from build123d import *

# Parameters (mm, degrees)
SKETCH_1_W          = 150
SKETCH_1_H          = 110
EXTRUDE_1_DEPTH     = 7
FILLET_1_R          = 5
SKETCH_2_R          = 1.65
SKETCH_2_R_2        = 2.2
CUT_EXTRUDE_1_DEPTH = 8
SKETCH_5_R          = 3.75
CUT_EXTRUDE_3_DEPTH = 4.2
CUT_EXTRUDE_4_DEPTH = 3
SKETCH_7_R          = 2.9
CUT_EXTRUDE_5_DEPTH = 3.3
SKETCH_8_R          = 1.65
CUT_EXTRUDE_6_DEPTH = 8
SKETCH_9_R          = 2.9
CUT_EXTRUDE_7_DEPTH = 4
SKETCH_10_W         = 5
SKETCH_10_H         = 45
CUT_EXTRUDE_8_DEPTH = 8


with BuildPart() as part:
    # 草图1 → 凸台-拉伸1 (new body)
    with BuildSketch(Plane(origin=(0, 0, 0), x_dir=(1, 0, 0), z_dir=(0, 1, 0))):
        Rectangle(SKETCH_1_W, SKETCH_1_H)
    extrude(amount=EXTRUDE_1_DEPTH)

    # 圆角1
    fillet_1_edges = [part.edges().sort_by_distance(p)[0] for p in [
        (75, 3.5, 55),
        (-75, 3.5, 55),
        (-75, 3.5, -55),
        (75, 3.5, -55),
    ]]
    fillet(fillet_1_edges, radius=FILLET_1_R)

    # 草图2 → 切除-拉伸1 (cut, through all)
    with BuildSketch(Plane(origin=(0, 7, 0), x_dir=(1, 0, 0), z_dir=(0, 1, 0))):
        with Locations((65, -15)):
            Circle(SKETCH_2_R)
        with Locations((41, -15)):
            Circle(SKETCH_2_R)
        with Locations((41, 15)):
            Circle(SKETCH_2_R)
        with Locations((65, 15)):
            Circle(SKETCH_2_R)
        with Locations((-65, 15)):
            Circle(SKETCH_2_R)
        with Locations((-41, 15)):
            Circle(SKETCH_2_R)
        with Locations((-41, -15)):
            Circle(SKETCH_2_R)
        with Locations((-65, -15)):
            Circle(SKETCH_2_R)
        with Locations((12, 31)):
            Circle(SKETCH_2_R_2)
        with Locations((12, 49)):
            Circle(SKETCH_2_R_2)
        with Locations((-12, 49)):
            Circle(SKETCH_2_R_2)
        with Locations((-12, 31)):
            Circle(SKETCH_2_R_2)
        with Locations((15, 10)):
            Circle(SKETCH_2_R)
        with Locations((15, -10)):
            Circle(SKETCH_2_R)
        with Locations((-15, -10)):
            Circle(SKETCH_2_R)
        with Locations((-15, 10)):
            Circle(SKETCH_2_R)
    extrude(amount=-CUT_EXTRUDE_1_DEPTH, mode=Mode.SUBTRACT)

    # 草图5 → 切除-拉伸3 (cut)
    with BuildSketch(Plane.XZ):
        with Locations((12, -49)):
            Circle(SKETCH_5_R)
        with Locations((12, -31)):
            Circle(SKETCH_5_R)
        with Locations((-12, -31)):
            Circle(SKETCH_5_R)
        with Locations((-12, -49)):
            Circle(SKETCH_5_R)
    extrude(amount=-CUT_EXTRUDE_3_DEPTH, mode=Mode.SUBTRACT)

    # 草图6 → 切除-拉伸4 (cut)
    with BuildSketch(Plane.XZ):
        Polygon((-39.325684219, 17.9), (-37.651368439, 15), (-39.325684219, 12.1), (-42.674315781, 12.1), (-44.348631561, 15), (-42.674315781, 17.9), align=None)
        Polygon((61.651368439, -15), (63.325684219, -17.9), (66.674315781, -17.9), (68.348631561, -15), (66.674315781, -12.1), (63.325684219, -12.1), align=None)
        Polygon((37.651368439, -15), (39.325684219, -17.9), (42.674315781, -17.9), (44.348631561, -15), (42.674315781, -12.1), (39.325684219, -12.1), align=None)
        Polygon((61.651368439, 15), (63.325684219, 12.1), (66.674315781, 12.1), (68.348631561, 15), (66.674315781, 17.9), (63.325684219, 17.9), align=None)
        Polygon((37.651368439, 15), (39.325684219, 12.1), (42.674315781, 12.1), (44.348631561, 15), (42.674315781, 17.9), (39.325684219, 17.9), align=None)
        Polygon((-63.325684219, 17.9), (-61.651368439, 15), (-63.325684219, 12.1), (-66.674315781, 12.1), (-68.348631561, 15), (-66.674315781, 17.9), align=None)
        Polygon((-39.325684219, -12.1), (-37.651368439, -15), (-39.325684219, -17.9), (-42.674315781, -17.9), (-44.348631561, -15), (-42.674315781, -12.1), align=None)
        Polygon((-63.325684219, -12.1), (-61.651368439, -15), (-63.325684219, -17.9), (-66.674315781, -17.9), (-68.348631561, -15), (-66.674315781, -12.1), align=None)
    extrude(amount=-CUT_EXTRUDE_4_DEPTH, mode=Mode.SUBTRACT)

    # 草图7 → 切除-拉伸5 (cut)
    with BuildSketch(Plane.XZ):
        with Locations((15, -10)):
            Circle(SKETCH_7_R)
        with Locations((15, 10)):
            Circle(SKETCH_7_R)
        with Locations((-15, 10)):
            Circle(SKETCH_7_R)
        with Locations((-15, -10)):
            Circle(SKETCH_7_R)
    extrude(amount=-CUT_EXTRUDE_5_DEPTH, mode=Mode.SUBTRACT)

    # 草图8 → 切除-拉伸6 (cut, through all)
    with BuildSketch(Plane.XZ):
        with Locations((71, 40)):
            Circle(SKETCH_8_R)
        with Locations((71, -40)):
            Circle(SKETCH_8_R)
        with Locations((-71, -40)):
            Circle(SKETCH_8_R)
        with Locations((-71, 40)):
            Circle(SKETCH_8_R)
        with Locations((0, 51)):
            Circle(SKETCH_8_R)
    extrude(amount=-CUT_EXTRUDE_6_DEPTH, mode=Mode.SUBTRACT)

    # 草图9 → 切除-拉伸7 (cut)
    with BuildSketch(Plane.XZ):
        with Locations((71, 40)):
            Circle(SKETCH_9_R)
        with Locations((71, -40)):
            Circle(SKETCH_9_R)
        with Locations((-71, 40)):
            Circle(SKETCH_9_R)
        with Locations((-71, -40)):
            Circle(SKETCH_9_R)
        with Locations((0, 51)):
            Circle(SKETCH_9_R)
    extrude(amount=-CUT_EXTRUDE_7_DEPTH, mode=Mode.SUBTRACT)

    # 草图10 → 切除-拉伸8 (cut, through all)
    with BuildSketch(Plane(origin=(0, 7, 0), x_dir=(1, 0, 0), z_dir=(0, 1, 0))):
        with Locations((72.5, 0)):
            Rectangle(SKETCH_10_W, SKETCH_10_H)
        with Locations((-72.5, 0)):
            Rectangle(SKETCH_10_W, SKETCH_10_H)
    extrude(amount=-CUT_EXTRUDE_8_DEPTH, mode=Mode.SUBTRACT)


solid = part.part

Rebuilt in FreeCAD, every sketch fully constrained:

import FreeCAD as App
import Part
import Sketcher
from FreeCAD import Vector
Q = App.Units.Quantity


def edges_at(feature, points):
    """Names of the edges that pass closest to the given points."""
    edges = feature.Shape.Edges
    near = lambda p: min(range(len(edges)), key=lambda i: edges[i].distToShape(Part.Vertex(*p))[0])
    return sorted({f"Edge{near(p) + 1}" for p in points})


def add_polygon(sketch, points):
    """Adds a closed chain of lines whose ends are joined by coincident constraints."""
    first, n = sketch.GeometryCount, len(points)
    for a, b in zip(points, points[1:] + points[:1]):
        sketch.addGeometry(Part.LineSegment(App.Vector(*a, 0), App.Vector(*b, 0)), False)
    for i in range(n):
        sketch.addConstraint(Sketcher.Constraint("Coincident", first + i, 2, first + (i + 1) % n, 1))

doc = App.newDocument("Part")
body = doc.addObject("PartDesign::Body", "Body")

# Sketch on XZ plane
sketch1 = body.newObject("Sketcher::SketchObject", "Sketch")
sketch1.AttachmentSupport = (doc.getObject("XZ_Plane"), [""])
sketch1.MapMode = "FlatFace"
add_polygon(sketch1, [(-75, -55), (-75, 55), (75, 55), (75, -55)])  # lines 0-3
sketch1.addConstraint(Sketcher.Constraint("Vertical", 0))
sketch1.addConstraint(Sketcher.Constraint("Horizontal", 1))
sketch1.addConstraint(Sketcher.Constraint("Vertical", 2))
sketch1.addConstraint(Sketcher.Constraint("Horizontal", 3))
sketch1.addConstraint(Sketcher.Constraint("Symmetric", 0, 2, 2, 2, -1, 1))
sketch1.addConstraint(Sketcher.Constraint("DistanceX", 1, 1, 1, 2, 150.0))
sketch1.addConstraint(Sketcher.Constraint("DistanceY", 0, 1, 0, 2, 110.0))
pad1 = body.newObject("PartDesign::Pad", "Pad")
pad1.Profile = sketch1
pad1.Length = 7
pad1.Reversed = True
doc.recompute()

fillet = body.newObject("PartDesign::Fillet", "Fillet")
fillet.Base = (pad1, edges_at(pad1, [
    (75, 3.5, 55),
    (-75, 3.5, 55),
    (-75, 3.5, -55),
    (75, 3.5, -55),
]))
fillet.Radius = 5

# Sketch on XZ plane
sketch2 = body.newObject("Sketcher::SketchObject", "Sketch001")
sketch2.AttachmentSupport = (doc.getObject("XZ_Plane"), [""])
sketch2.MapMode = "FlatFace"
sketch2.AttachmentOffset = App.Placement(Vector(0, 0, -7), App.Rotation())
sketch2.addGeometry(Part.Circle(Vector(65, 15, 0), Vector(0, 0, 1), 1.6), False)
sketch2.addGeometry(Part.Circle(Vector(41, 15, 0), Vector(0, 0, 1), 1.6), False)
sketch2.addGeometry(Part.Circle(Vector(41, -15, 0), Vector(0, 0, 1), 1.6), False)
sketch2.addGeometry(Part.Circle(Vector(65, -15, 0), Vector(0, 0, 1), 1.6), False)
sketch2.addGeometry(Part.Circle(Vector(-65, -15, 0), Vector(0, 0, 1), 1.6), False)
sketch2.addGeometry(Part.Circle(Vector(-41, -15, 0), Vector(0, 0, 1), 1.6), False)
sketch2.addGeometry(Part.Circle(Vector(-41, 15, 0), Vector(0, 0, 1), 1.6), False)
sketch2.addGeometry(Part.Circle(Vector(-65, 15, 0), Vector(0, 0, 1), 1.6), False)
sketch2.addGeometry(Part.Circle(Vector(12, -31, 0), Vector(0, 0, 1), 2.2), False)
sketch2.addGeometry(Part.Circle(Vector(12, -49, 0), Vector(0, 0, 1), 2.2), False)
sketch2.addGeometry(Part.Circle(Vector(-12, -49, 0), Vector(0, 0, 1), 2.2), False)
sketch2.addGeometry(Part.Circle(Vector(-12, -31, 0), Vector(0, 0, 1), 2.2), False)
sketch2.addGeometry(Part.Circle(Vector(15, -10, 0), Vector(0, 0, 1), 1.6), False)
sketch2.addGeometry(Part.Circle(Vector(15, 10, 0), Vector(0, 0, 1), 1.6), False)
sketch2.addGeometry(Part.Circle(Vector(-15, 10, 0), Vector(0, 0, 1), 1.6), False)
sketch2.addGeometry(Part.Circle(Vector(-15, -10, 0), Vector(0, 0, 1), 1.6), False)
sketch2.addConstraint(Sketcher.Constraint("Equal", 0, 1))
sketch2.addConstraint(Sketcher.Constraint("Equal", 1, 2))
sketch2.addConstraint(Sketcher.Constraint("Equal", 2, 3))
sketch2.addConstraint(Sketcher.Constraint("Equal", 3, 4))
sketch2.addConstraint(Sketcher.Constraint("Equal", 4, 5))
sketch2.addConstraint(Sketcher.Constraint("Equal", 5, 6))
sketch2.addConstraint(Sketcher.Constraint("Equal", 6, 7))
sketch2.addConstraint(Sketcher.Constraint("Equal", 8, 9))
sketch2.addConstraint(Sketcher.Constraint("Equal", 9, 10))
sketch2.addConstraint(Sketcher.Constraint("Equal", 10, 11))
sketch2.addConstraint(Sketcher.Constraint("Equal", 7, 12))
sketch2.addConstraint(Sketcher.Constraint("Equal", 12, 13))
sketch2.addConstraint(Sketcher.Constraint("Equal", 13, 14))
sketch2.addConstraint(Sketcher.Constraint("Equal", 14, 15))
sketch2.addConstraint(Sketcher.Constraint("Symmetric", 0, 3, 4, 3, -1, 1))
sketch2.addConstraint(Sketcher.Constraint("Symmetric", 1, 3, 5, 3, -1, 1))
sketch2.addConstraint(Sketcher.Constraint("Symmetric", 2, 3, 6, 3, -1, 1))
sketch2.addConstraint(Sketcher.Constraint("Symmetric", 3, 3, 7, 3, -1, 1))
sketch2.addConstraint(Sketcher.Constraint("Symmetric", 12, 3, 14, 3, -1, 1))
sketch2.addConstraint(Sketcher.Constraint("Symmetric", 13, 3, 15, 3, -1, 1))
sketch2.addConstraint(Sketcher.Constraint("Symmetric", 3, 3, 4, 3, -2))
sketch2.addConstraint(Sketcher.Constraint("Symmetric", 2, 3, 5, 3, -2))
sketch2.addConstraint(Sketcher.Constraint("Symmetric", 9, 3, 10, 3, -2))
sketch2.addConstraint(Sketcher.Constraint("Symmetric", 8, 3, 11, 3, -2))
sketch2.addConstraint(Sketcher.Constraint("Symmetric", 13, 3, 14, 3, -2))
sketch2.addConstraint(Sketcher.Constraint("Horizontal", 0, 3, 1, 3))
sketch2.addConstraint(Sketcher.Constraint("Vertical", 8, 3, 9, 3))
sketch2.addConstraint(Sketcher.Constraint("Diameter", 0, 3.3))
sketch2.addConstraint(Sketcher.Constraint("Diameter", 8, 4.4))
sketch2.addConstraint(Sketcher.Constraint("DistanceX", -1, 1, 0, 3, 65.0))
sketch2.addConstraint(Sketcher.Constraint("DistanceY", -1, 1, 0, 3, 15.0))
sketch2.addConstraint(Sketcher.Constraint("DistanceX", -1, 1, 1, 3, 41.0))
sketch2.addConstraint(Sketcher.Constraint("DistanceX", -1, 1, 8, 3, 12.0))
sketch2.addConstraint(Sketcher.Constraint("DistanceY", 8, 3, -1, 1, 31.0))
sketch2.addConstraint(Sketcher.Constraint("DistanceY", 9, 3, -1, 1, 49.0))
sketch2.addConstraint(Sketcher.Constraint("DistanceX", -1, 1, 12, 3, 15.0))
sketch2.addConstraint(Sketcher.Constraint("DistanceY", 12, 3, -1, 1, 10.0))
pocket1 = body.newObject("PartDesign::Pocket", "Pocket")
pocket1.Profile = sketch2
pocket1.Type = "ThroughAll"
pocket1.Reversed = True

# Sketch on XZ plane
sketch3 = body.newObject("Sketcher::SketchObject", "Sketch002")
sketch3.AttachmentSupport = (doc.getObject("XZ_Plane"), [""])
sketch3.MapMode = "FlatFace"
sketch3.addGeometry(Part.Circle(Vector(12, -49, 0), Vector(0, 0, 1), 3.8), False)
sketch3.addGeometry(Part.Circle(Vector(12, -31, 0), Vector(0, 0, 1), 3.8), False)
sketch3.addGeometry(Part.Circle(Vector(-12, -31, 0), Vector(0, 0, 1), 3.8), False)
sketch3.addGeometry(Part.Circle(Vector(-12, -49, 0), Vector(0, 0, 1), 3.8), False)
sketch3.addConstraint(Sketcher.Constraint("Equal", 0, 1))
sketch3.addConstraint(Sketcher.Constraint("Equal", 1, 2))
sketch3.addConstraint(Sketcher.Constraint("Equal", 2, 3))
sketch3.addConstraint(Sketcher.Constraint("Symmetric", 1, 3, 2, 3, -2))
sketch3.addConstraint(Sketcher.Constraint("Symmetric", 0, 3, 3, 3, -2))
sketch3.addConstraint(Sketcher.Constraint("Vertical", 0, 3, 1, 3))
sketch3.addConstraint(Sketcher.Constraint("Diameter", 0, 7.5))
sketch3.addConstraint(Sketcher.Constraint("DistanceX", -1, 1, 0, 3, 12.0))
sketch3.addConstraint(Sketcher.Constraint("DistanceY", 0, 3, -1, 1, 49.0))
sketch3.addConstraint(Sketcher.Constraint("DistanceY", 1, 3, -1, 1, 31.0))
pocket2 = body.newObject("PartDesign::Pocket", "Pocket001")
pocket2.Profile = sketch3
pocket2.Length = 4.2

# Sketch on XZ plane
sketch4 = body.newObject("Sketcher::SketchObject", "Sketch003")
sketch4.AttachmentSupport = (doc.getObject("XZ_Plane"), [""])
sketch4.MapMode = "FlatFace"
add_polygon(sketch4, [(-37.7, 15), (-39.3, 17.9), (-42.7, 17.9), (-44.3, 15), (-42.7, 12.1), (-39.3, 12.1)])  # lines 0-5
add_polygon(sketch4, [(61.7, -15), (63.3, -17.9), (66.7, -17.9), (68.3, -15), (66.7, -12.1), (63.3, -12.1)])  # lines 6-11
add_polygon(sketch4, [(37.7, -15), (39.3, -17.9), (42.7, -17.9), (44.3, -15), (42.7, -12.1), (39.3, -12.1)])  # lines 12-17
add_polygon(sketch4, [(61.7, 15), (63.3, 12.1), (66.7, 12.1), (68.3, 15), (66.7, 17.9), (63.3, 17.9)])  # lines 18-23
add_polygon(sketch4, [(37.7, 15), (39.3, 12.1), (42.7, 12.1), (44.3, 15), (42.7, 17.9), (39.3, 17.9)])  # lines 24-29
add_polygon(sketch4, [(-61.7, 15), (-63.3, 17.9), (-66.7, 17.9), (-68.3, 15), (-66.7, 12.1), (-63.3, 12.1)])  # lines 30-35
add_polygon(sketch4, [(-37.7, -15), (-39.3, -12.1), (-42.7, -12.1), (-44.3, -15), (-42.7, -17.9), (-39.3, -17.9)])  # lines 36-41
add_polygon(sketch4, [(-61.7, -15), (-63.3, -12.1), (-66.7, -12.1), (-68.3, -15), (-66.7, -17.9), (-63.3, -17.9)])  # lines 42-47
sketch4.addConstraint(Sketcher.Constraint("Horizontal", 1))
sketch4.addConstraint(Sketcher.Constraint("Horizontal", 4))
sketch4.addConstraint(Sketcher.Constraint("Horizontal", 7))
sketch4.addConstraint(Sketcher.Constraint("Horizontal", 10))
sketch4.addConstraint(Sketcher.Constraint("Horizontal", 13))
sketch4.addConstraint(Sketcher.Constraint("Horizontal", 16))
sketch4.addConstraint(Sketcher.Constraint("Horizontal", 19))
sketch4.addConstraint(Sketcher.Constraint("Horizontal", 22))
sketch4.addConstraint(Sketcher.Constraint("Horizontal", 25))
sketch4.addConstraint(Sketcher.Constraint("Horizontal", 28))
sketch4.addConstraint(Sketcher.Constraint("Horizontal", 31))
sketch4.addConstraint(Sketcher.Constraint("Horizontal", 34))
sketch4.addConstraint(Sketcher.Constraint("Horizontal", 37))
sketch4.addConstraint(Sketcher.Constraint("Horizontal", 40))
sketch4.addConstraint(Sketcher.Constraint("Horizontal", 43))
sketch4.addConstraint(Sketcher.Constraint("Horizontal", 46))
sketch4.addConstraint(Sketcher.Constraint("Symmetric", 0, 2, 12, 2, -1, 1))
sketch4.addConstraint(Sketcher.Constraint("Symmetric", 2, 2, 14, 2, -1, 1))
sketch4.addConstraint(Sketcher.Constraint("Symmetric", 3, 2, 15, 2, -1, 1))
sketch4.addConstraint(Sketcher.Constraint("Symmetric", 5, 2, 17, 2, -1, 1))
sketch4.addConstraint(Sketcher.Constraint("Symmetric", 6, 2, 30, 2, -1, 1))
sketch4.addConstraint(Sketcher.Constraint("Symmetric", 8, 2, 32, 2, -1, 1))
sketch4.addConstraint(Sketcher.Constraint("Symmetric", 9, 2, 33, 2, -1, 1))
sketch4.addConstraint(Sketcher.Constraint("Symmetric", 11, 2, 35, 2, -1, 1))
sketch4.addConstraint(Sketcher.Constraint("Symmetric", 24, 2, 36, 2, -1, 1))
sketch4.addConstraint(Sketcher.Constraint("Symmetric", 26, 2, 38, 2, -1, 1))
sketch4.addConstraint(Sketcher.Constraint("Symmetric", 27, 2, 39, 2, -1, 1))
sketch4.addConstraint(Sketcher.Constraint("Symmetric", 29, 2, 41, 2, -1, 1))
sketch4.addConstraint(Sketcher.Constraint("Symmetric", 18, 2, 42, 2, -1, 1))
sketch4.addConstraint(Sketcher.Constraint("Symmetric", 20, 2, 44, 2, -1, 1))
sketch4.addConstraint(Sketcher.Constraint("Symmetric", 21, 2, 45, 2, -1, 1))
sketch4.addConstraint(Sketcher.Constraint("Symmetric", 23, 2, 47, 2, -1, 1))
sketch4.addConstraint(Sketcher.Constraint("Symmetric", 4, 2, 24, 2, -2))
sketch4.addConstraint(Sketcher.Constraint("Symmetric", 2, 2, 26, 2, -2))
sketch4.addConstraint(Sketcher.Constraint("Symmetric", 1, 2, 27, 2, -2))
sketch4.addConstraint(Sketcher.Constraint("Symmetric", 5, 2, 29, 2, -2))
sketch4.addConstraint(Sketcher.Constraint("Symmetric", 22, 2, 30, 2, -2))
sketch4.addConstraint(Sketcher.Constraint("Symmetric", 20, 2, 32, 2, -2))
sketch4.addConstraint(Sketcher.Constraint("Symmetric", 19, 2, 33, 2, -2))
sketch4.addConstraint(Sketcher.Constraint("Symmetric", 23, 2, 35, 2, -2))
sketch4.addConstraint(Sketcher.Constraint("Parallel", 0, 3))
sketch4.addConstraint(Sketcher.Constraint("Parallel", 2, 5))
sketch4.addConstraint(Sketcher.Constraint("Parallel", 3, 6))
sketch4.addConstraint(Sketcher.Constraint("Parallel", 5, 8))
sketch4.addConstraint(Sketcher.Constraint("Parallel", 6, 9))
sketch4.addConstraint(Sketcher.Constraint("Parallel", 8, 11))
sketch4.addConstraint(Sketcher.Constraint("Parallel", 11, 14))
sketch4.addConstraint(Sketcher.Constraint("Parallel", 14, 17))
sketch4.addConstraint(Sketcher.Constraint("Parallel", 15, 18))
sketch4.addConstraint(Sketcher.Constraint("Parallel", 17, 20))
sketch4.addConstraint(Sketcher.Constraint("Parallel", 18, 21))
sketch4.addConstraint(Sketcher.Constraint("Parallel", 23, 26))
sketch4.addConstraint(Sketcher.Constraint("Parallel", 26, 29))
sketch4.addConstraint(Sketcher.Constraint("Parallel", 29, 32))
sketch4.addConstraint(Sketcher.Constraint("Parallel", 32, 35))
sketch4.addConstraint(Sketcher.Constraint("Parallel", 35, 38))
sketch4.addConstraint(Sketcher.Constraint("Parallel", 38, 41))
sketch4.addConstraint(Sketcher.Constraint("Parallel", 41, 44))
sketch4.addConstraint(Sketcher.Constraint("Parallel", 44, 47))
sketch4.addConstraint(Sketcher.Constraint("Horizontal", 2, 2, 5, 2))
sketch4.addConstraint(Sketcher.Constraint("Horizontal", 8, 2, 11, 2))
sketch4.addConstraint(Sketcher.Constraint("Horizontal", 7, 2, 12, 2))
sketch4.addConstraint(Sketcher.Constraint("Horizontal", 11, 2, 14, 2))
sketch4.addConstraint(Sketcher.Constraint("Horizontal", 10, 2, 15, 2))
sketch4.addConstraint(Sketcher.Constraint("Vertical", 1, 2, 3, 2))
sketch4.addConstraint(Sketcher.Constraint("Equal", 4, 7))
sketch4.addConstraint(Sketcher.Constraint("Angle", 0, Q("120 deg")))
sketch4.addConstraint(Sketcher.Constraint("DistanceY", -1, 1, 2, 2, 15.0))
sketch4.addConstraint(Sketcher.Constraint("DistanceX", 3, 2, 6, 2, 106.0))
sketch4.addConstraint(Sketcher.Constraint("DistanceX", 12, 2, 6, 2, 24.0))
sketch4.addConstraint(Sketcher.Constraint("DistanceY", -1, 1, 0, 2, 17.9))
sketch4.addConstraint(Sketcher.Constraint("DistanceX", 1, 2, 1, 1, 3.348632))
pocket3 = body.newObject("PartDesign::Pocket", "Pocket002")
pocket3.Profile = sketch4
pocket3.Length = 3

# Sketch on XZ plane
sketch5 = body.newObject("Sketcher::SketchObject", "Sketch004")
sketch5.AttachmentSupport = (doc.getObject("XZ_Plane"), [""])
sketch5.MapMode = "FlatFace"
sketch5.addGeometry(Part.Circle(Vector(15, -10, 0), Vector(0, 0, 1), 2.9), False)
sketch5.addGeometry(Part.Circle(Vector(15, 10, 0), Vector(0, 0, 1), 2.9), False)
sketch5.addGeometry(Part.Circle(Vector(-15, 10, 0), Vector(0, 0, 1), 2.9), False)
sketch5.addGeometry(Part.Circle(Vector(-15, -10, 0), Vector(0, 0, 1), 2.9), False)
sketch5.addConstraint(Sketcher.Constraint("Equal", 0, 1))
sketch5.addConstraint(Sketcher.Constraint("Equal", 1, 2))
sketch5.addConstraint(Sketcher.Constraint("Equal", 2, 3))
sketch5.addConstraint(Sketcher.Constraint("Symmetric", 0, 3, 2, 3, -1, 1))
sketch5.addConstraint(Sketcher.Constraint("Symmetric", 1, 3, 3, 3, -1, 1))
sketch5.addConstraint(Sketcher.Constraint("Symmetric", 1, 3, 2, 3, -2))
sketch5.addConstraint(Sketcher.Constraint("Diameter", 0, 5.8))
sketch5.addConstraint(Sketcher.Constraint("DistanceX", -1, 1, 0, 3, 15.0))
sketch5.addConstraint(Sketcher.Constraint("DistanceY", 0, 3, -1, 1, 10.0))
pocket4 = body.newObject("PartDesign::Pocket", "Pocket003")
pocket4.Profile = sketch5
pocket4.Length = 3.3

# Sketch on XZ plane
sketch6 = body.newObject("Sketcher::SketchObject", "Sketch005")
sketch6.AttachmentSupport = (doc.getObject("XZ_Plane"), [""])
sketch6.MapMode = "FlatFace"
sketch6.addGeometry(Part.Circle(Vector(71, 40, 0), Vector(0, 0, 1), 1.6), False)
sketch6.addGeometry(Part.Circle(Vector(71, -40, 0), Vector(0, 0, 1), 1.6), False)
sketch6.addGeometry(Part.Circle(Vector(-71, -40, 0), Vector(0, 0, 1), 1.6), False)
sketch6.addGeometry(Part.Circle(Vector(-71, 40, 0), Vector(0, 0, 1), 1.6), False)
sketch6.addGeometry(Part.Circle(Vector(0, 51, 0), Vector(0, 0, 1), 1.6), False)
sketch6.addConstraint(Sketcher.Constraint("Equal", 0, 1))
sketch6.addConstraint(Sketcher.Constraint("Equal", 1, 2))
sketch6.addConstraint(Sketcher.Constraint("Equal", 2, 3))
sketch6.addConstraint(Sketcher.Constraint("Equal", 3, 4))
sketch6.addConstraint(Sketcher.Constraint("Symmetric", 0, 3, 2, 3, -1, 1))
sketch6.addConstraint(Sketcher.Constraint("Symmetric", 1, 3, 3, 3, -1, 1))
sketch6.addConstraint(Sketcher.Constraint("Symmetric", 1, 3, 2, 3, -2))
sketch6.addConstraint(Sketcher.Constraint("PointOnObject", 4, 3, -2))
sketch6.addConstraint(Sketcher.Constraint("Diameter", 0, 3.3))
sketch6.addConstraint(Sketcher.Constraint("DistanceX", -1, 1, 0, 3, 71.0))
sketch6.addConstraint(Sketcher.Constraint("DistanceY", -1, 1, 0, 3, 40.0))
sketch6.addConstraint(Sketcher.Constraint("DistanceY", -1, 1, 4, 3, 51.0))
pocket5 = body.newObject("PartDesign::Pocket", "Pocket004")
pocket5.Profile = sketch6
pocket5.Type = "ThroughAll"

# Sketch on XZ plane
sketch7 = body.newObject("Sketcher::SketchObject", "Sketch006")
sketch7.AttachmentSupport = (doc.getObject("XZ_Plane"), [""])
sketch7.MapMode = "FlatFace"
sketch7.addGeometry(Part.Circle(Vector(71, 40, 0), Vector(0, 0, 1), 2.9), False)
sketch7.addGeometry(Part.Circle(Vector(71, -40, 0), Vector(0, 0, 1), 2.9), False)
sketch7.addGeometry(Part.Circle(Vector(-71, 40, 0), Vector(0, 0, 1), 2.9), False)
sketch7.addGeometry(Part.Circle(Vector(-71, -40, 0), Vector(0, 0, 1), 2.9), False)
sketch7.addGeometry(Part.Circle(Vector(0, 51, 0), Vector(0, 0, 1), 2.9), False)
sketch7.addConstraint(Sketcher.Constraint("Equal", 0, 1))
sketch7.addConstraint(Sketcher.Constraint("Equal", 1, 2))
sketch7.addConstraint(Sketcher.Constraint("Equal", 2, 3))
sketch7.addConstraint(Sketcher.Constraint("Equal", 3, 4))
sketch7.addConstraint(Sketcher.Constraint("Symmetric", 1, 3, 2, 3, -1, 1))
sketch7.addConstraint(Sketcher.Constraint("Symmetric", 0, 3, 3, 3, -1, 1))
sketch7.addConstraint(Sketcher.Constraint("Symmetric", 0, 3, 2, 3, -2))
sketch7.addConstraint(Sketcher.Constraint("PointOnObject", 4, 3, -2))
sketch7.addConstraint(Sketcher.Constraint("Diameter", 0, 5.8))
sketch7.addConstraint(Sketcher.Constraint("DistanceX", -1, 1, 0, 3, 71.0))
sketch7.addConstraint(Sketcher.Constraint("DistanceY", -1, 1, 0, 3, 40.0))
sketch7.addConstraint(Sketcher.Constraint("DistanceY", -1, 1, 4, 3, 51.0))
pocket6 = body.newObject("PartDesign::Pocket", "Pocket005")
pocket6.Profile = sketch7
pocket6.Length = 4

# Sketch on XZ plane
sketch8 = body.newObject("Sketcher::SketchObject", "Sketch007")
sketch8.AttachmentSupport = (doc.getObject("XZ_Plane"), [""])
sketch8.MapMode = "FlatFace"
sketch8.AttachmentOffset = App.Placement(Vector(0, 0, -7), App.Rotation())
add_polygon(sketch8, [(70, -22), (70, 22), (75, 22), (75, -22)])  # lines 0-3
add_polygon(sketch8, [(-75, -22), (-75, 22), (-70, 22), (-70, -22)])  # lines 4-7
sketch8.addConstraint(Sketcher.Constraint("Vertical", 0))
sketch8.addConstraint(Sketcher.Constraint("Horizontal", 1))
sketch8.addConstraint(Sketcher.Constraint("Vertical", 2))
sketch8.addConstraint(Sketcher.Constraint("Horizontal", 3))
sketch8.addConstraint(Sketcher.Constraint("Vertical", 4))
sketch8.addConstraint(Sketcher.Constraint("Horizontal", 5))
sketch8.addConstraint(Sketcher.Constraint("Vertical", 6))
sketch8.addConstraint(Sketcher.Constraint("Horizontal", 7))
sketch8.addConstraint(Sketcher.Constraint("Symmetric", 2, 2, 4, 2, -1, 1))
sketch8.addConstraint(Sketcher.Constraint("Symmetric", 0, 2, 6, 2, -1, 1))
sketch8.addConstraint(Sketcher.Constraint("Horizontal", 1, 2, 4, 2))
sketch8.addConstraint(Sketcher.Constraint("DistanceX", 1, 1, 1, 2, 5.0))
sketch8.addConstraint(Sketcher.Constraint("DistanceY", 0, 1, 0, 2, 45.0))
sketch8.addConstraint(Sketcher.Constraint("DistanceX", -1, 1, 0, 2, 70.0))
pocket7 = body.newObject("PartDesign::Pocket", "Pocket006")
pocket7.Profile = sketch8
pocket7.Type = "ThroughAll"
pocket7.Reversed = True

doc.recompute()
